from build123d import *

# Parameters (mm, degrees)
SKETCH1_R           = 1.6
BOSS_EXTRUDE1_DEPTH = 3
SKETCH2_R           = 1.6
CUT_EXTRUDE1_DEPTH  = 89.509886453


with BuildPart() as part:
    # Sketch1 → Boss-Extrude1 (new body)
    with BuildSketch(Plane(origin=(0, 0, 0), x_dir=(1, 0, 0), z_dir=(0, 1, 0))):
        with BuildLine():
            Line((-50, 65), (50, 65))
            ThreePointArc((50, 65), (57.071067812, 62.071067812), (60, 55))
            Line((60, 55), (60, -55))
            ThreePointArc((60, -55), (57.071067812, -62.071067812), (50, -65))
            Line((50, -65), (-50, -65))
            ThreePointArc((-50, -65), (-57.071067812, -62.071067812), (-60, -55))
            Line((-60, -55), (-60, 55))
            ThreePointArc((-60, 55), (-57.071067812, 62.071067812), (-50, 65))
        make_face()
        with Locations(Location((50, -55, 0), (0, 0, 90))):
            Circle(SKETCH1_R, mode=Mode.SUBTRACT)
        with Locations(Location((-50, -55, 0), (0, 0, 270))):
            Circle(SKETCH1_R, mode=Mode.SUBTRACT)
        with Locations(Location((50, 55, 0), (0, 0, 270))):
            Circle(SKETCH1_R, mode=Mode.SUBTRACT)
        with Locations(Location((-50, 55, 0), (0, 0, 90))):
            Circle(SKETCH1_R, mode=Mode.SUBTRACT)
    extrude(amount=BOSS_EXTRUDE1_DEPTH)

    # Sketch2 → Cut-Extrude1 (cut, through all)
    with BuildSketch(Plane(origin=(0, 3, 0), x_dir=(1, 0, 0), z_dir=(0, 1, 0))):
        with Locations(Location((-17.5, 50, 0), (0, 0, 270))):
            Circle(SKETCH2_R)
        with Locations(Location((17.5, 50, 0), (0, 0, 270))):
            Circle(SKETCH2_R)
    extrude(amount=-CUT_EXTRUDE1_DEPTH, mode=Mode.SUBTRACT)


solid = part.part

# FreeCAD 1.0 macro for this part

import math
import FreeCAD as App
import Part
import Sketcher
from FreeCAD import Vector
Q = App.Units.Quantity

doc = App.newDocument("Part")
params = doc.addObject("Spreadsheet::Sheet", "Params")
for row, (alias, value) in enumerate([
    ("sketch1_radius", "10 mm"),
    ("sketch1_diameter", "3.2 mm"),
    ("sketch1_width", "100 mm"),
    ("sketch1_height", "110 mm"),
    ("pad1_length", "3 mm"),
    ("sketch2_diameter", "3.2 mm"),
], start=1):
    params.set(f"A{row}", alias)
    params.set(f"B{row}", "=" + value)
    params.setAlias(f"B{row}", alias)

body = doc.addObject("PartDesign::Body", "Body")

# Sketch on XZ plane
sketch1 = body.newObject("Sketcher::SketchObject", "Sketch")
sketch1.AttachmentSupport = (doc.getObject("XZ_Plane"), [""])
sketch1.MapMode = "FlatFace"
sketch1.addGeometry([
    Part.LineSegment(Vector(50, -65, 0), Vector(-50, -65, 0)),  # 0
    Part.ArcOfCircle(Part.Circle(Vector(-50, -55, 0), Vector(0, 0, 1), 10), math.radians(180), math.radians(270)),  # 1
    Part.LineSegment(Vector(-60, -55, 0), Vector(-60, 55, 0)),  # 2
    Part.ArcOfCircle(Part.Circle(Vector(-50, 55, 0), Vector(0, 0, 1), 10), math.radians(90), math.radians(180)),  # 3
    Part.LineSegment(Vector(-50, 65, 0), Vector(50, 65, 0)),  # 4
    Part.ArcOfCircle(Part.Circle(Vector(50, 55, 0), Vector(0, 0, 1), 10), math.radians(0), math.radians(90)),  # 5
    Part.LineSegment(Vector(60, 55, 0), Vector(60, -55, 0)),  # 6
    Part.ArcOfCircle(Part.Circle(Vector(50, -55, 0), Vector(0, 0, 1), 10), math.radians(-90), math.radians(0)),  # 7
    Part.Circle(Vector(50, 55, 0), Vector(0, 0, 1), 1.6),  # 8
    Part.Circle(Vector(-50, 55, 0), Vector(0, 0, 1), 1.6),  # 9
    Part.Circle(Vector(50, -55, 0), Vector(0, 0, 1), 1.6),  # 10
    Part.Circle(Vector(-50, -55, 0), Vector(0, 0, 1), 1.6),  # 11
], False)
sketch1.addConstraint([
    Sketcher.Constraint("Tangent", 0, 2, 1, 2),
    Sketcher.Constraint("Tangent", 1, 1, 2, 1),
    Sketcher.Constraint("Tangent", 2, 2, 3, 2),
    Sketcher.Constraint("Tangent", 3, 1, 4, 1),
    Sketcher.Constraint("Tangent", 4, 2, 5, 2),
    Sketcher.Constraint("Tangent", 5, 1, 6, 1),
    Sketcher.Constraint("Tangent", 6, 2, 7, 2),
    Sketcher.Constraint("Tangent", 7, 1, 0, 1),
    Sketcher.Constraint("Horizontal", 0),
    Sketcher.Constraint("Vertical", 2),
    Sketcher.Constraint("Horizontal", 4),
    Sketcher.Constraint("Vertical", 6),
    Sketcher.Constraint("Coincident", 8, 3, 5, 3),
    Sketcher.Constraint("Coincident", 9, 3, 3, 3),
    Sketcher.Constraint("Coincident", 10, 3, 7, 3),
    Sketcher.Constraint("Coincident", 11, 3, 1, 3),
    Sketcher.Constraint("Equal", 1, 3),
    Sketcher.Constraint("Equal", 3, 5),
    Sketcher.Constraint("Equal", 5, 7),
    Sketcher.Constraint("Equal", 8, 9),
    Sketcher.Constraint("Equal", 9, 10),
    Sketcher.Constraint("Equal", 10, 11),
    Sketcher.Constraint("Symmetric", 1, 3, 5, 3, -1, 1),
    Sketcher.Constraint("Radius", 1, Q("10 mm")),
    Sketcher.Constraint("Diameter", 8, Q("3.2 mm")),
    Sketcher.Constraint("DistanceX", 0, 2, 0, 1, Q("100 mm")),
    Sketcher.Constraint("DistanceY", 2, 1, 2, 2, Q("110 mm")),
])
sketch1.setExpression("Constraints[23]", "Params.sketch1_radius")
sketch1.setExpression("Constraints[24]", "Params.sketch1_diameter")
sketch1.setExpression("Constraints[25]", "Params.sketch1_width")
sketch1.setExpression("Constraints[26]", "Params.sketch1_height")
pad1 = body.newObject("PartDesign::Pad", "Pad")
pad1.Profile = sketch1
pad1.setExpression("Length", "Params.pad1_length")
pad1.Reversed = True

# Sketch on XZ plane
sketch2 = body.newObject("Sketcher::SketchObject", "Sketch001")
sketch2.AttachmentSupport = (doc.getObject("XZ_Plane"), [""])
sketch2.MapMode = "FlatFace"
sketch2.AttachmentOffset = App.Placement(Vector(0, 0, -3), App.Rotation())
sketch2.addGeometry([
    Part.Circle(Vector(-17.5, -50, 0), Vector(0, 0, 1), 1.6),
    Part.Circle(Vector(17.5, -50, 0), Vector(0, 0, 1), 1.6),
], False)
sketch2.addConstraint([
    Sketcher.Constraint("Equal", 0, 1),
    Sketcher.Constraint("Symmetric", 0, 3, 1, 3, -2),
    Sketcher.Constraint("Diameter", 0, Q("3.2 mm")),
    Sketcher.Constraint("DistanceY", 0, 3, -1, 1, Q("50 mm")),
    Sketcher.Constraint("DistanceX", 0, 3, 1, 3, Q("35 mm")),
])
sketch2.setExpression("Constraints[2]", "Params.sketch2_diameter")
pocket1 = body.newObject("PartDesign::Pocket", "Pocket")
pocket1.Profile = sketch2
pocket1.Type = "ThroughAll"
pocket1.Reversed = True

doc.recompute()
